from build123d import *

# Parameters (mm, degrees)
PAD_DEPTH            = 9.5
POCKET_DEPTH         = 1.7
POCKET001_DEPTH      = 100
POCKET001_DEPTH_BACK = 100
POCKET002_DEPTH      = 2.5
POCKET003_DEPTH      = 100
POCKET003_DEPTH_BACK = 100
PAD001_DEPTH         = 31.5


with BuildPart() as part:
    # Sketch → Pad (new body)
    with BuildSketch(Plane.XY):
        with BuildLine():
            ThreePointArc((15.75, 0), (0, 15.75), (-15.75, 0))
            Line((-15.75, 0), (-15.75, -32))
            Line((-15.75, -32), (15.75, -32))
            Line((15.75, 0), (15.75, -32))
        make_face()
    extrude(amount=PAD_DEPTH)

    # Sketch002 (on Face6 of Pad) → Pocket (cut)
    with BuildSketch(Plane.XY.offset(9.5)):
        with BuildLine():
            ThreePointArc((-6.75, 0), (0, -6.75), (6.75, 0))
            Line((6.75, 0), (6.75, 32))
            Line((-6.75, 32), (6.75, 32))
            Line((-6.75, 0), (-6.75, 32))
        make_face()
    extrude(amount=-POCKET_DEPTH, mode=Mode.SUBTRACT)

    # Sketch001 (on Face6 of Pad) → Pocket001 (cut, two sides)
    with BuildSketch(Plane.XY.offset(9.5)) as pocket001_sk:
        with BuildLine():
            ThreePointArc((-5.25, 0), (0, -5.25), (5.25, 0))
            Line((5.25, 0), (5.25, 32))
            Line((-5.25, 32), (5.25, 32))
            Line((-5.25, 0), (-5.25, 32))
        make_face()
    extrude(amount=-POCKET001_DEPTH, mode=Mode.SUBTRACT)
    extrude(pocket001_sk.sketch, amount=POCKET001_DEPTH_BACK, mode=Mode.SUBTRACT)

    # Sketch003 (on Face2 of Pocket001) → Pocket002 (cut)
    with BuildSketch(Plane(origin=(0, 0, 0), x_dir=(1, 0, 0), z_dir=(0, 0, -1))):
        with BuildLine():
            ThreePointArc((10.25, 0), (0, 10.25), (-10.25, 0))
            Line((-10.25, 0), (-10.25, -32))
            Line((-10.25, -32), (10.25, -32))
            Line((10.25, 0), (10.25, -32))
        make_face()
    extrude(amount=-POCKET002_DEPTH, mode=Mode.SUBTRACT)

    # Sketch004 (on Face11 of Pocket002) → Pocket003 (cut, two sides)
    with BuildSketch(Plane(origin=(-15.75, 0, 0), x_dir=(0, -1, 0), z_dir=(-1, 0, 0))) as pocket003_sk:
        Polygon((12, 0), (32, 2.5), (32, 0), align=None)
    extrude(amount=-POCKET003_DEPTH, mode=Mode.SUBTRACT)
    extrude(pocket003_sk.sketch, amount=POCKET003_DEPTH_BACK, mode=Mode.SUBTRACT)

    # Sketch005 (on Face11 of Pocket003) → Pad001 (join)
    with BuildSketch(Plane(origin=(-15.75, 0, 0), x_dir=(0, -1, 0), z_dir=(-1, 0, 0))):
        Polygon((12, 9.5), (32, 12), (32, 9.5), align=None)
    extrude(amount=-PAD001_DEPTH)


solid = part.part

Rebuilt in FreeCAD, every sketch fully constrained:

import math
import FreeCAD as App
import Part
import Sketcher
from FreeCAD import Vector
Q = App.Units.Quantity

doc = App.newDocument("Part")
body = doc.addObject("PartDesign::Body", "Body")

# Sketch on XY plane
sketch1 = body.newObject("Sketcher::SketchObject", "Sketch")
sketch1.AttachmentSupport = (doc.getObject("XY_Plane"), [""])
sketch1.MapMode = "FlatFace"
sketch1.addGeometry([
    Part.ArcOfCircle(Part.Circle(Vector(0, 0, 0), Vector(0, 0, 1), 16), math.radians(0), math.radians(180)),
    Part.LineSegment(Vector(-16, 0, 0), Vector(-16, -32, 0)),
    Part.LineSegment(Vector(-16, -32, 0), Vector(16, -32, 0)),
    Part.LineSegment(Vector(16, -32, 0), Vector(16, 0, 0)),
], False)
sketch1.addConstraint([
    Sketcher.Constraint("Tangent", 0, 2, 1, 1),
    Sketcher.Constraint("Coincident", 1, 2, 2, 1),
    Sketcher.Constraint("Coincident", 2, 2, 3, 1),
    Sketcher.Constraint("Tangent", 3, 2, 0, 1),
    Sketcher.Constraint("Vertical", 1),
    Sketcher.Constraint("Horizontal", 2),
    Sketcher.Constraint("Vertical", 3),
    Sketcher.Constraint("Coincident", 0, 3, -1, 1),
    Sketcher.Constraint("DistanceY", 1, 2, 1, 1, Q("32 mm")),
    Sketcher.Constraint("Radius", 0, Q("15.75 mm")),
])
pad1 = body.newObject("PartDesign::Pad", "Pad")
pad1.Profile = sketch1
pad1.Length = 9.5

# Sketch on XY plane
sketch2 = body.newObject("Sketcher::SketchObject", "Sketch001")
sketch2.AttachmentSupport = (doc.getObject("XY_Plane"), [""])
sketch2.MapMode = "FlatFace"
sketch2.AttachmentOffset = App.Placement(Vector(0, 0, 9.5), App.Rotation())
sketch2.addGeometry([
    Part.ArcOfCircle(Part.Circle(Vector(0, 0, 0), Vector(0, 0, 1), 7), math.radians(180), math.radians(360)),
    Part.LineSegment(Vector(7, 0, 0), Vector(7, 32, 0)),
    Part.LineSegment(Vector(7, 32, 0), Vector(-7, 32, 0)),
    Part.LineSegment(Vector(-7, 32, 0), Vector(-7, 0, 0)),
], False)
sketch2.addConstraint([
    Sketcher.Constraint("Tangent", 0, 2, 1, 1),
    Sketcher.Constraint("Coincident", 1, 2, 2, 1),
    Sketcher.Constraint("Coincident", 2, 2, 3, 1),
    Sketcher.Constraint("Tangent", 3, 2, 0, 1),
    Sketcher.Constraint("Vertical", 1),
    Sketcher.Constraint("Horizontal", 2),
    Sketcher.Constraint("Vertical", 3),
    Sketcher.Constraint("Coincident", 0, 3, -1, 1),
    Sketcher.Constraint("DistanceY", 1, 1, 1, 2, Q("32 mm")),
    Sketcher.Constraint("Radius", 0, Q("6.75 mm")),
])
pocket1 = body.newObject("PartDesign::Pocket", "Pocket")
pocket1.Profile = sketch2
pocket1.Length = 1.7

# Sketch on XY plane
sketch3 = body.newObject("Sketcher::SketchObject", "Sketch002")
sketch3.AttachmentSupport = (doc.getObject("XY_Plane"), [""])
sketch3.MapMode = "FlatFace"
sketch3.AttachmentOffset = App.Placement(Vector(0, 0, 9.5), App.Rotation())
sketch3.addGeometry([
    Part.ArcOfCircle(Part.Circle(Vector(0, 0, 0), Vector(0, 0, 1), 5), math.radians(180), math.radians(360)),
    Part.LineSegment(Vector(5, 0, 0), Vector(5, 32, 0)),
    Part.LineSegment(Vector(5, 32, 0), Vector(-5, 32, 0)),
    Part.LineSegment(Vector(-5, 32, 0), Vector(-5, 0, 0)),
], False)
sketch3.addConstraint([
    Sketcher.Constraint("Tangent", 0, 2, 1, 1),
    Sketcher.Constraint("Coincident", 1, 2, 2, 1),
    Sketcher.Constraint("Coincident", 2, 2, 3, 1),
    Sketcher.Constraint("Tangent", 3, 2, 0, 1),
    Sketcher.Constraint("Vertical", 1),
    Sketcher.Constraint("Horizontal", 2),
    Sketcher.Constraint("Vertical", 3),
    Sketcher.Constraint("Coincident", 0, 3, -1, 1),
    Sketcher.Constraint("DistanceY", 1, 1, 1, 2, Q("32 mm")),
    Sketcher.Constraint("Radius", 0, Q("5.25 mm")),
])
pocket2 = body.newObject("PartDesign::Pocket", "Pocket001")
pocket2.Profile = sketch3
pocket2.Type = "ThroughAll"
pocket2.Midplane = True

# Sketch on XY plane
sketch4 = body.newObject("Sketcher::SketchObject", "Sketch003")
sketch4.AttachmentSupport = (doc.getObject("XY_Plane"), [""])
sketch4.MapMode = "FlatFace"
sketch4.addGeometry([
    Part.ArcOfCircle(Part.Circle(Vector(0, 0, 0), Vector(0, 0, 1), 10), math.radians(180), math.radians(360)),
    Part.LineSegment(Vector(-10, 0, 0), Vector(-10, 32, 0)),
    Part.LineSegment(Vector(-10, 32, 0), Vector(10, 32, 0)),
    Part.LineSegment(Vector(10, 32, 0), Vector(10, 0, 0)),
], False)
sketch4.addConstraint([
    Sketcher.Constraint("Tangent", 0, 1, 1, 1),
    Sketcher.Constraint("Coincident", 1, 2, 2, 1),
    Sketcher.Constraint("Coincident", 2, 2, 3, 1),
    Sketcher.Constraint("Tangent", 3, 2, 0, 2),
    Sketcher.Constraint("Vertical", 1),
    Sketcher.Constraint("Horizontal", 2),
    Sketcher.Constraint("Vertical", 3),
    Sketcher.Constraint("Coincident", 0, 3, -1, 1),
    Sketcher.Constraint("DistanceY", 1, 1, 1, 2, Q("32 mm")),
    Sketcher.Constraint("Radius", 0, Q("10.25 mm")),
])
pocket3 = body.newObject("PartDesign::Pocket", "Pocket002")
pocket3.Profile = sketch4
pocket3.Length = 2.5
pocket3.Reversed = True

# Sketch on YZ plane
sketch5 = body.newObject("Sketcher::SketchObject", "Sketch004")
sketch5.AttachmentSupport = (doc.getObject("YZ_Plane"), [""])
sketch5.MapMode = "FlatFace"
sketch5.AttachmentOffset = App.Placement(Vector(0, 0, -15.75), App.Rotation())
sketch5.addGeometry([
    Part.LineSegment(Vector(-32, 2.5, 0), Vector(-12, 0, 0)),
    Part.LineSegment(Vector(-12, 0, 0), Vector(-32, 0, 0)),
    Part.LineSegment(Vector(-32, 0, 0), Vector(-32, 2.5, 0)),
], False)
sketch5.addConstraint([
    Sketcher.Constraint("Coincident", 0, 2, 1, 1),
    Sketcher.Constraint("Coincident", 1, 2, 2, 1),
    Sketcher.Constraint("Coincident", 2, 2, 0, 1),
    Sketcher.Constraint("Horizontal", 1),
    Sketcher.Constraint("Vertical", 2),
    Sketcher.Constraint("PointOnObject", 0, 2, -1),
    Sketcher.Constraint("DistanceX", 1, 2, 1, 1, Q("20 mm")),
    Sketcher.Constraint("DistanceY", 2, 1, 2, 2, Q("2.5 mm")),
    Sketcher.Constraint("DistanceX", 0, 2, -1, 1, Q("12 mm")),
])
pocket4 = body.newObject("PartDesign::Pocket", "Pocket003")
pocket4.Profile = sketch5
pocket4.Type = "ThroughAll"
pocket4.Midplane = True

# Sketch on YZ plane
sketch6 = body.newObject("Sketcher::SketchObject", "Sketch005")
sketch6.AttachmentSupport = (doc.getObject("YZ_Plane"), [""])
sketch6.MapMode = "FlatFace"
sketch6.AttachmentOffset = App.Placement(Vector(0, 0, -15.75), App.Rotation())
sketch6.addGeometry([
    Part.LineSegment(Vector(-32, 12, 0), Vector(-12, 9.5, 0)),
    Part.LineSegment(Vector(-12, 9.5, 0), Vector(-32, 9.5, 0)),
    Part.LineSegment(Vector(-32, 9.5, 0), Vector(-32, 12, 0)),
], False)
sketch6.addConstraint([
    Sketcher.Constraint("Coincident", 0, 2, 1, 1),
    Sketcher.Constraint("Coincident", 1, 2, 2, 1),
    Sketcher.Constraint("Coincident", 2, 2, 0, 1),
    Sketcher.Constraint("Horizontal", 1),
    Sketcher.Constraint("Vertical", 2),
    Sketcher.Constraint("DistanceX", 1, 2, 1, 1, Q("20 mm")),
    Sketcher.Constraint("DistanceY", 2, 1, 2, 2, Q("2.5 mm")),
    Sketcher.Constraint("DistanceX", 0, 2, -1, 1, Q("12 mm")),
    Sketcher.Constraint("DistanceY", -1, 1, 2, 2, Q("12 mm")),
])
pad2 = body.newObject("PartDesign::Pad", "Pad001")
pad2.Profile = sketch6
pad2.Length = 31.5

doc.recompute()
